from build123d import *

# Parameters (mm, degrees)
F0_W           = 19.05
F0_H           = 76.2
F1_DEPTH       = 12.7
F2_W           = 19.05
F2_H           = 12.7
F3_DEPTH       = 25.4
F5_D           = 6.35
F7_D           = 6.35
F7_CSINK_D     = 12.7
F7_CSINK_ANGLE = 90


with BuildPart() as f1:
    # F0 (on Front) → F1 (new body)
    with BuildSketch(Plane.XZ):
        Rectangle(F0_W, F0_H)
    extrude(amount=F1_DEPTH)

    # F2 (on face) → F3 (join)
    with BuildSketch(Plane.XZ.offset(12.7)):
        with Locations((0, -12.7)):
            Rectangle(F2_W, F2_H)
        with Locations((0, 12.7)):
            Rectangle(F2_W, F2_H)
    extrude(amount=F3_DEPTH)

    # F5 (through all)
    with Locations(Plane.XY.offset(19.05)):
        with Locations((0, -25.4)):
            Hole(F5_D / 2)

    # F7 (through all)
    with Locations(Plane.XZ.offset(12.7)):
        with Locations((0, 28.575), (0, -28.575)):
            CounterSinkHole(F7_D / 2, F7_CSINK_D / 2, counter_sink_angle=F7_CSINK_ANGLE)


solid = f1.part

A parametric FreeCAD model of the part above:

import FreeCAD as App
import Part
import Sketcher
from FreeCAD import Vector
Q = App.Units.Quantity


def add_polygon(sketch, points):
    """Adds a closed chain of lines whose ends are joined by coincident constraints."""
    first, n = sketch.GeometryCount, len(points)
    for a, b in zip(points, points[1:] + points[:1]):
        sketch.addGeometry(Part.LineSegment(App.Vector(*a, 0), App.Vector(*b, 0)), False)
    for i in range(n):
        sketch.addConstraint(Sketcher.Constraint("Coincident", first + i, 2, first + (i + 1) % n, 1))

doc = App.newDocument("Part")
body = doc.addObject("PartDesign::Body", "Body")

# Sketch on XZ plane
sketch1 = body.newObject("Sketcher::SketchObject", "Sketch")
sketch1.AttachmentSupport = (doc.getObject("XZ_Plane"), [""])
sketch1.MapMode = "FlatFace"
add_polygon(sketch1, [(-10, 38), (-10, -38), (10, -38), (10, 38)])  # lines 0-3
sketch1.addConstraint([
    Sketcher.Constraint("Vertical", 0),
    Sketcher.Constraint("Horizontal", 1),
    Sketcher.Constraint("Vertical", 2),
    Sketcher.Constraint("Horizontal", 3),
    Sketcher.Constraint("Symmetric", 0, 2, 2, 2, -1, 1),
    Sketcher.Constraint("DistanceY", 0, 2, 0, 1, Q("3 in")),
    Sketcher.Constraint("DistanceX", 1, 1, 1, 2, Q("0.75 in")),
])
pad1 = body.newObject("PartDesign::Pad", "Pad")
pad1.Profile = sketch1
pad1.Length = Q("0.5 in")

# Sketch on XZ plane
sketch2 = body.newObject("Sketcher::SketchObject", "Sketch001")
sketch2.AttachmentSupport = (doc.getObject("XZ_Plane"), [""])
sketch2.MapMode = "FlatFace"
sketch2.AttachmentOffset = App.Placement(Vector(0, 0, 0.5 * 25.4), App.Rotation())
add_polygon(sketch2, [(-10, -6), (-10, -19), (10, -19), (10, -6)])  # lines 0-3
add_polygon(sketch2, [(-10, 19), (-10, 6), (10, 6), (10, 19)])  # lines 4-7
sketch2.addConstraint([
    Sketcher.Constraint("Vertical", 0),
    Sketcher.Constraint("Horizontal", 1),
    Sketcher.Constraint("Vertical", 2),
    Sketcher.Constraint("Horizontal", 3),
    Sketcher.Constraint("Vertical", 4),
    Sketcher.Constraint("Horizontal", 5),
    Sketcher.Constraint("Vertical", 6),
    Sketcher.Constraint("Horizontal", 7),
    Sketcher.Constraint("Symmetric", 2, 2, 4, 2, -1, 1),
    Sketcher.Constraint("Symmetric", 0, 2, 6, 2, -1, 1),
    Sketcher.Constraint("Vertical", 3, 2, 4, 2),
    Sketcher.Constraint("DistanceY", 0, 2, 0, 1, Q("0.5 in")),
    Sketcher.Constraint("DistanceY", 0, 2, 4, 2, Q("1 in")),
    Sketcher.Constraint("DistanceX", 1, 1, 1, 2, Q("0.75 in")),
])
pad2 = body.newObject("PartDesign::Pad", "Pad001")
pad2.Profile = sketch2
pad2.Length = Q("1 in")

# Sketch on XY plane
sketch3 = body.newObject("Sketcher::SketchObject", "Sketch002")
sketch3.AttachmentSupport = (doc.getObject("XY_Plane"), [""])
sketch3.MapMode = "FlatFace"
sketch3.AttachmentOffset = App.Placement(Vector(0, 0, 0.75 * 25.4), App.Rotation())
sketch3.addGeometry(Part.Circle(Vector(0, -25.4, 0), Vector(0, 0, 1), 3.2), False)
sketch3.addConstraint([
    Sketcher.Constraint("PointOnObject", 0, 3, -2),
    Sketcher.Constraint("Diameter", 0, Q("0.25 in")),
    Sketcher.Constraint("DistanceY", 0, 3, -1, 1, Q("1 in")),
])
doc.recompute()
hole = body.newObject("PartDesign::Hole", "Hole")
hole.Profile = sketch3
hole.ThreadType = "None"
hole.Diameter = Q("0.25 in")
hole.DepthType = "ThroughAll"

# Sketch on XZ plane
sketch4 = body.newObject("Sketcher::SketchObject", "Sketch003")
sketch4.AttachmentSupport = (doc.getObject("XZ_Plane"), [""])
sketch4.MapMode = "FlatFace"
sketch4.AttachmentOffset = App.Placement(Vector(0, 0, 0.5 * 25.4), App.Rotation())
sketch4.addGeometry([
    Part.Circle(Vector(0, 28.6, 0), Vector(0, 0, 1), 3.2),
    Part.Circle(Vector(0, -28.6, 0), Vector(0, 0, 1), 3.2),
], False)
sketch4.addConstraint([
    Sketcher.Constraint("Equal", 0, 1),
    Sketcher.Constraint("Symmetric", 0, 3, 1, 3, -1, 1),
    Sketcher.Constraint("PointOnObject", 0, 3, -2),
    Sketcher.Constraint("Diameter", 0, Q("0.25 in")),
    Sketcher.Constraint("DistanceY", 1, 3, 0, 3, Q("2.25 in")),
])
doc.recompute()
hole2 = body.newObject("PartDesign::Hole", "Hole001")
hole2.Profile = sketch4
hole2.ThreadType = "None"
hole2.Diameter = Q("0.25 in")
hole2.DepthType = "ThroughAll"
hole2.HoleCutType = "Countersink"
hole2.HoleCutDiameter = Q("0.5 in")
hole2.HoleCutCountersinkAngle = 90

doc.recompute()
